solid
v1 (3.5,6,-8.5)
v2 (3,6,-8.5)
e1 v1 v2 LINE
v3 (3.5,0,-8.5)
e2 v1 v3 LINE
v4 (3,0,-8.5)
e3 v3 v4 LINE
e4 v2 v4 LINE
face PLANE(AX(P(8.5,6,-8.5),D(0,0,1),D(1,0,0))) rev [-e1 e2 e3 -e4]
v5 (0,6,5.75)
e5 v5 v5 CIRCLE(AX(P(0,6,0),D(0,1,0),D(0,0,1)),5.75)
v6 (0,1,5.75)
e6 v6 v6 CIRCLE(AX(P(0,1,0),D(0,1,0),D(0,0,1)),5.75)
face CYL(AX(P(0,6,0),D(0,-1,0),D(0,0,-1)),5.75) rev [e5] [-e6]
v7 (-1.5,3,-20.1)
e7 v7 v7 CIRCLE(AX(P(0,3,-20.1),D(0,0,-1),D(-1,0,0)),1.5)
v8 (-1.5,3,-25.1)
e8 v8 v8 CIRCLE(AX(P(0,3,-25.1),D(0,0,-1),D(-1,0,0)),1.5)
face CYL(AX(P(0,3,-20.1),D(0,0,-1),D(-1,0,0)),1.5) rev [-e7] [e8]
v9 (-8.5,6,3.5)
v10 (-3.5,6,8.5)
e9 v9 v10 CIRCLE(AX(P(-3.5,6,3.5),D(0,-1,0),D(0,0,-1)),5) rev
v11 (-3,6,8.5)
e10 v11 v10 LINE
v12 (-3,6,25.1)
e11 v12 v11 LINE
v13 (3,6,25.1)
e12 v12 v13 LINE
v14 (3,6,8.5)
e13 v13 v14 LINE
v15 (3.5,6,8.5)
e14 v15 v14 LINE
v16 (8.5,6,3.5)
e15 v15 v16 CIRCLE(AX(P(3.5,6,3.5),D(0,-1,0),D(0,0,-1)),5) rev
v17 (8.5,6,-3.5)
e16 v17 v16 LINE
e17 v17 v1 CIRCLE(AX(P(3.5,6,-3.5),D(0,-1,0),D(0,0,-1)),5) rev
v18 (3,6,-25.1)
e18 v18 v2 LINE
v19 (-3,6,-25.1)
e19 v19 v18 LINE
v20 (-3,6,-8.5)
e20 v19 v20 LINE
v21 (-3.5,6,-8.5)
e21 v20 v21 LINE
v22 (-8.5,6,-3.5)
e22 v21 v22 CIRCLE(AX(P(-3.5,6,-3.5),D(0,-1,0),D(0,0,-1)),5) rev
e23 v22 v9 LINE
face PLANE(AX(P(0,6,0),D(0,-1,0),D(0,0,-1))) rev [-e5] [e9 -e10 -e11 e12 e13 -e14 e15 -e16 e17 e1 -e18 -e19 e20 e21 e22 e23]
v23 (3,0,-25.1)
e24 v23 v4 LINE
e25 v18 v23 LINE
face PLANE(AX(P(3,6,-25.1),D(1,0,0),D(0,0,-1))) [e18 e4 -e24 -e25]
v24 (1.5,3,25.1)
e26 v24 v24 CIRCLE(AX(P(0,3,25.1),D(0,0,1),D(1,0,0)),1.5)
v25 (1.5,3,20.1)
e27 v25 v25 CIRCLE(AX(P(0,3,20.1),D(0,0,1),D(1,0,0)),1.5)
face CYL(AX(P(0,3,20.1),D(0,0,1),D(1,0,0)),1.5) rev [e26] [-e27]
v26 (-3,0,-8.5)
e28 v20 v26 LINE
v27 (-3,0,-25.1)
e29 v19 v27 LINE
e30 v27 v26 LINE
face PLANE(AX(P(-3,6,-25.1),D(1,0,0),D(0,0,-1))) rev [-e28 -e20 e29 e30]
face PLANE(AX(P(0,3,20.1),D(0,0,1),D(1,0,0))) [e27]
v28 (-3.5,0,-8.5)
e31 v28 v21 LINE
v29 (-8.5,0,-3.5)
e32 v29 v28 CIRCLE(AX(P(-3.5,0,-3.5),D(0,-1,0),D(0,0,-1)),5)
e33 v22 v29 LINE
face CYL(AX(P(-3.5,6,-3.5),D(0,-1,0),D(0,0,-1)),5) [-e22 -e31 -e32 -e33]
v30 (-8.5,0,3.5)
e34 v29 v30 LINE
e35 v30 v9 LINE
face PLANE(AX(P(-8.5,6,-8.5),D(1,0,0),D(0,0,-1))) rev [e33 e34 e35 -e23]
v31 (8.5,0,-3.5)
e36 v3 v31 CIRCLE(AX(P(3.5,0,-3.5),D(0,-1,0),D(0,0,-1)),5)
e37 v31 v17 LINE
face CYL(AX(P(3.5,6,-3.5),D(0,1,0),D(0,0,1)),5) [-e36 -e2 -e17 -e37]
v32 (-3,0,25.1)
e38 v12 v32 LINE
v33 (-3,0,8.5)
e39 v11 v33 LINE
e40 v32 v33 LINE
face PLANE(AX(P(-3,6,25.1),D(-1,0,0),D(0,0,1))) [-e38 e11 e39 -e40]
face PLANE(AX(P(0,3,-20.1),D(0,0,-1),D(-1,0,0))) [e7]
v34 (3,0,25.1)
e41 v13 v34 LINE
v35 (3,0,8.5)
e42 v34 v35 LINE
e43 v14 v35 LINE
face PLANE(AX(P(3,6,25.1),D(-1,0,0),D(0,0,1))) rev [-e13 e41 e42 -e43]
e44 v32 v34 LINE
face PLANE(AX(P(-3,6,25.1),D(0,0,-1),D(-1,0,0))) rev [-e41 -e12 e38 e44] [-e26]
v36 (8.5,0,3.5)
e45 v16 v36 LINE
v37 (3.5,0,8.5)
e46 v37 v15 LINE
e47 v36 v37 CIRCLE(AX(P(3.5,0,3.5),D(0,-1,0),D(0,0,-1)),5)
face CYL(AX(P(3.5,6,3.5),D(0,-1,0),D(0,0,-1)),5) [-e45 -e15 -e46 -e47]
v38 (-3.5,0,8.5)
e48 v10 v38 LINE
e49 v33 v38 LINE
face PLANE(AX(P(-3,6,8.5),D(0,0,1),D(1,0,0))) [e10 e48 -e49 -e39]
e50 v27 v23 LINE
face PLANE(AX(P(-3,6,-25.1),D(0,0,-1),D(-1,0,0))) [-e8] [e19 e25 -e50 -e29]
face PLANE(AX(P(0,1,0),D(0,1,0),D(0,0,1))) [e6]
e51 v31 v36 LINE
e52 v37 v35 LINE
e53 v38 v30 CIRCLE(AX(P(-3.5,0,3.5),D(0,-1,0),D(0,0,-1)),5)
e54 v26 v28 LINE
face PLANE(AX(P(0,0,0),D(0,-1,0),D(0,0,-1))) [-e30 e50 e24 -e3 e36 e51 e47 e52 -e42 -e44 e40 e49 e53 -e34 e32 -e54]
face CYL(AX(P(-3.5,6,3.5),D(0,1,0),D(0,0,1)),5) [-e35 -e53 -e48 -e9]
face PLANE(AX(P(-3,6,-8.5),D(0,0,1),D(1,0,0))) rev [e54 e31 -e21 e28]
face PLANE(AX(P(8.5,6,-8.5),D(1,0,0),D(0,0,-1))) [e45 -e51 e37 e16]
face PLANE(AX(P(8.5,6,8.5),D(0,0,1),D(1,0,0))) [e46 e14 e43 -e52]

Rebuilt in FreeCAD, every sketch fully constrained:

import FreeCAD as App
import Part
import Sketcher


def edges_at(feature, points):
    """Names of the edges that pass closest to the given points."""
    edges = feature.Shape.Edges
    near = lambda p: min(range(len(edges)), key=lambda i: edges[i].distToShape(Part.Vertex(*p))[0])
    return sorted({f"Edge{near(p) + 1}" for p in points})


def add_polygon(sketch, points):
    """Adds a closed chain of lines whose ends are joined by coincident constraints."""
    first, n = sketch.GeometryCount, len(points)
    for a, b in zip(points, points[1:] + points[:1]):
        sketch.addGeometry(Part.LineSegment(App.Vector(*a, 0), App.Vector(*b, 0)), False)
    for i in range(n):
        sketch.addConstraint(Sketcher.Constraint("Coincident", first + i, 2, first + (i + 1) % n, 1))

doc = App.newDocument("Part")
body = doc.addObject("PartDesign::Body", "Body")

# Sketch on XZ plane
sketch1 = body.newObject("Sketcher::SketchObject", "Sketch")
sketch1.AttachmentSupport = (doc.getObject("XZ_Plane"), [""])
sketch1.MapMode = "FlatFace"
add_polygon(sketch1, [(8.5, -8.5), (3, -8.5), (3, -25.1), (-3, -25.1), (-3, -8.5), (-8.5, -8.5), (-8.5, 8.5), (-3, 8.5), (-3, 25.1), (3, 25.1), (3, 8.5), (8.5, 8.5)])  # lines 0-11
sketch1.addGeometry(Part.Circle(App.Vector(0, 0, 0), App.Vector(0, 0, 1), 5.75), False)  # 12
sketch1.addConstraint(Sketcher.Constraint("Horizontal", 0))
sketch1.addConstraint(Sketcher.Constraint("Vertical", 1))
sketch1.addConstraint(Sketcher.Constraint("Horizontal", 2))
sketch1.addConstraint(Sketcher.Constraint("Vertical", 3))
sketch1.addConstraint(Sketcher.Constraint("Horizontal", 4))
sketch1.addConstraint(Sketcher.Constraint("Vertical", 5))
sketch1.addConstraint(Sketcher.Constraint("Horizontal", 6))
sketch1.addConstraint(Sketcher.Constraint("Vertical", 7))
sketch1.addConstraint(Sketcher.Constraint("Horizontal", 8))
sketch1.addConstraint(Sketcher.Constraint("Vertical", 9))
sketch1.addConstraint(Sketcher.Constraint("Horizontal", 10))
sketch1.addConstraint(Sketcher.Constraint("Vertical", 11))
sketch1.addConstraint(Sketcher.Constraint("Coincident", 12, 3, -1, 1))
sketch1.addConstraint(Sketcher.Constraint("Symmetric", 0, 2, 6, 2, -1, 1))
sketch1.addConstraint(Sketcher.Constraint("Symmetric", 2, 2, 8, 2, -1, 1))
sketch1.addConstraint(Sketcher.Constraint("Symmetric", 4, 2, 10, 2, -1, 1))
sketch1.addConstraint(Sketcher.Constraint("Symmetric", 0, 2, 3, 2, -2))
sketch1.addConstraint(Sketcher.Constraint("Diameter", 12, 11.5))
sketch1.addConstraint(Sketcher.Constraint("DistanceX", 2, 2, 2, 1, 6.0))
sketch1.addConstraint(Sketcher.Constraint("DistanceY", 5, 1, 5, 2, 17.0))
sketch1.addConstraint(Sketcher.Constraint("DistanceX", 0, 2, 0, 1, 5.5))
sketch1.addConstraint(Sketcher.Constraint("DistanceY", 1, 2, 1, 1, 16.6))
pad1 = body.newObject("PartDesign::Pad", "Pad")
pad1.Profile = sketch1
pad1.Length = 6
pad1.Reversed = True

# Sketch on XZ plane
sketch2 = body.newObject("Sketcher::SketchObject", "Sketch001")
sketch2.AttachmentSupport = (doc.getObject("XZ_Plane"), [""])
sketch2.MapMode = "FlatFace"
add_polygon(sketch2, [(-8.5, 8.5), (-8.5, -8.5), (8.5, -8.5), (8.5, 8.5)])  # lines 0-3
sketch2.addConstraint(Sketcher.Constraint("Vertical", 0))
sketch2.addConstraint(Sketcher.Constraint("Horizontal", 1))
sketch2.addConstraint(Sketcher.Constraint("Vertical", 2))
sketch2.addConstraint(Sketcher.Constraint("Horizontal", 3))
sketch2.addConstraint(Sketcher.Constraint("Symmetric", 0, 2, 2, 2, -1, 1))
sketch2.addConstraint(Sketcher.Constraint("Equal", 3, 0))
sketch2.addConstraint(Sketcher.Constraint("DistanceX", 1, 1, 1, 2, 17.0))
pad2 = body.newObject("PartDesign::Pad", "Pad001")
pad2.Profile = sketch2
pad2.Length = 1
pad2.Reversed = True
doc.recompute()

fillet = body.newObject("PartDesign::Fillet", "Fillet")
fillet.Base = (pad2, edges_at(pad2, [
    (8.5, 3, -8.5),
    (-8.5, 3, -8.5),
    (-8.5, 3, 8.5),
    (8.5, 3, 8.5),
]))
fillet.Radius = 5

# Sketch on XY plane
sketch3 = body.newObject("Sketcher::SketchObject", "Sketch002")
sketch3.AttachmentSupport = (doc.getObject("XY_Plane"), [""])
sketch3.MapMode = "FlatFace"
sketch3.AttachmentOffset = App.Placement(App.Vector(0, 0, -25.1), App.Rotation())
sketch3.addGeometry(Part.Circle(App.Vector(0, 3, 0), App.Vector(0, 0, 1), 1.5), False)
sketch3.addConstraint(Sketcher.Constraint("PointOnObject", 0, 3, -2))
sketch3.addConstraint(Sketcher.Constraint("Diameter", 0, 3.0))
sketch3.addConstraint(Sketcher.Constraint("DistanceY", -1, 1, 0, 3, 3.0))
pocket1 = body.newObject("PartDesign::Pocket", "Pocket")
pocket1.Profile = sketch3
pocket1.Length = 5
pocket1.Reversed = True

# Sketch on XY plane
sketch4 = body.newObject("Sketcher::SketchObject", "Sketch003")
sketch4.AttachmentSupport = (doc.getObject("XY_Plane"), [""])
sketch4.MapMode = "FlatFace"
sketch4.AttachmentOffset = App.Placement(App.Vector(0, 0, 25.1), App.Rotation())
sketch4.addGeometry(Part.Circle(App.Vector(0, 3, 0), App.Vector(0, 0, 1), 1.5), False)
sketch4.addConstraint(Sketcher.Constraint("PointOnObject", 0, 3, -2))
sketch4.addConstraint(Sketcher.Constraint("Diameter", 0, 3.0))
sketch4.addConstraint(Sketcher.Constraint("DistanceY", -1, 1, 0, 3, 3.0))
pocket2 = body.newObject("PartDesign::Pocket", "Pocket001")
pocket2.Profile = sketch4
pocket2.Length = 5

doc.recompute()
